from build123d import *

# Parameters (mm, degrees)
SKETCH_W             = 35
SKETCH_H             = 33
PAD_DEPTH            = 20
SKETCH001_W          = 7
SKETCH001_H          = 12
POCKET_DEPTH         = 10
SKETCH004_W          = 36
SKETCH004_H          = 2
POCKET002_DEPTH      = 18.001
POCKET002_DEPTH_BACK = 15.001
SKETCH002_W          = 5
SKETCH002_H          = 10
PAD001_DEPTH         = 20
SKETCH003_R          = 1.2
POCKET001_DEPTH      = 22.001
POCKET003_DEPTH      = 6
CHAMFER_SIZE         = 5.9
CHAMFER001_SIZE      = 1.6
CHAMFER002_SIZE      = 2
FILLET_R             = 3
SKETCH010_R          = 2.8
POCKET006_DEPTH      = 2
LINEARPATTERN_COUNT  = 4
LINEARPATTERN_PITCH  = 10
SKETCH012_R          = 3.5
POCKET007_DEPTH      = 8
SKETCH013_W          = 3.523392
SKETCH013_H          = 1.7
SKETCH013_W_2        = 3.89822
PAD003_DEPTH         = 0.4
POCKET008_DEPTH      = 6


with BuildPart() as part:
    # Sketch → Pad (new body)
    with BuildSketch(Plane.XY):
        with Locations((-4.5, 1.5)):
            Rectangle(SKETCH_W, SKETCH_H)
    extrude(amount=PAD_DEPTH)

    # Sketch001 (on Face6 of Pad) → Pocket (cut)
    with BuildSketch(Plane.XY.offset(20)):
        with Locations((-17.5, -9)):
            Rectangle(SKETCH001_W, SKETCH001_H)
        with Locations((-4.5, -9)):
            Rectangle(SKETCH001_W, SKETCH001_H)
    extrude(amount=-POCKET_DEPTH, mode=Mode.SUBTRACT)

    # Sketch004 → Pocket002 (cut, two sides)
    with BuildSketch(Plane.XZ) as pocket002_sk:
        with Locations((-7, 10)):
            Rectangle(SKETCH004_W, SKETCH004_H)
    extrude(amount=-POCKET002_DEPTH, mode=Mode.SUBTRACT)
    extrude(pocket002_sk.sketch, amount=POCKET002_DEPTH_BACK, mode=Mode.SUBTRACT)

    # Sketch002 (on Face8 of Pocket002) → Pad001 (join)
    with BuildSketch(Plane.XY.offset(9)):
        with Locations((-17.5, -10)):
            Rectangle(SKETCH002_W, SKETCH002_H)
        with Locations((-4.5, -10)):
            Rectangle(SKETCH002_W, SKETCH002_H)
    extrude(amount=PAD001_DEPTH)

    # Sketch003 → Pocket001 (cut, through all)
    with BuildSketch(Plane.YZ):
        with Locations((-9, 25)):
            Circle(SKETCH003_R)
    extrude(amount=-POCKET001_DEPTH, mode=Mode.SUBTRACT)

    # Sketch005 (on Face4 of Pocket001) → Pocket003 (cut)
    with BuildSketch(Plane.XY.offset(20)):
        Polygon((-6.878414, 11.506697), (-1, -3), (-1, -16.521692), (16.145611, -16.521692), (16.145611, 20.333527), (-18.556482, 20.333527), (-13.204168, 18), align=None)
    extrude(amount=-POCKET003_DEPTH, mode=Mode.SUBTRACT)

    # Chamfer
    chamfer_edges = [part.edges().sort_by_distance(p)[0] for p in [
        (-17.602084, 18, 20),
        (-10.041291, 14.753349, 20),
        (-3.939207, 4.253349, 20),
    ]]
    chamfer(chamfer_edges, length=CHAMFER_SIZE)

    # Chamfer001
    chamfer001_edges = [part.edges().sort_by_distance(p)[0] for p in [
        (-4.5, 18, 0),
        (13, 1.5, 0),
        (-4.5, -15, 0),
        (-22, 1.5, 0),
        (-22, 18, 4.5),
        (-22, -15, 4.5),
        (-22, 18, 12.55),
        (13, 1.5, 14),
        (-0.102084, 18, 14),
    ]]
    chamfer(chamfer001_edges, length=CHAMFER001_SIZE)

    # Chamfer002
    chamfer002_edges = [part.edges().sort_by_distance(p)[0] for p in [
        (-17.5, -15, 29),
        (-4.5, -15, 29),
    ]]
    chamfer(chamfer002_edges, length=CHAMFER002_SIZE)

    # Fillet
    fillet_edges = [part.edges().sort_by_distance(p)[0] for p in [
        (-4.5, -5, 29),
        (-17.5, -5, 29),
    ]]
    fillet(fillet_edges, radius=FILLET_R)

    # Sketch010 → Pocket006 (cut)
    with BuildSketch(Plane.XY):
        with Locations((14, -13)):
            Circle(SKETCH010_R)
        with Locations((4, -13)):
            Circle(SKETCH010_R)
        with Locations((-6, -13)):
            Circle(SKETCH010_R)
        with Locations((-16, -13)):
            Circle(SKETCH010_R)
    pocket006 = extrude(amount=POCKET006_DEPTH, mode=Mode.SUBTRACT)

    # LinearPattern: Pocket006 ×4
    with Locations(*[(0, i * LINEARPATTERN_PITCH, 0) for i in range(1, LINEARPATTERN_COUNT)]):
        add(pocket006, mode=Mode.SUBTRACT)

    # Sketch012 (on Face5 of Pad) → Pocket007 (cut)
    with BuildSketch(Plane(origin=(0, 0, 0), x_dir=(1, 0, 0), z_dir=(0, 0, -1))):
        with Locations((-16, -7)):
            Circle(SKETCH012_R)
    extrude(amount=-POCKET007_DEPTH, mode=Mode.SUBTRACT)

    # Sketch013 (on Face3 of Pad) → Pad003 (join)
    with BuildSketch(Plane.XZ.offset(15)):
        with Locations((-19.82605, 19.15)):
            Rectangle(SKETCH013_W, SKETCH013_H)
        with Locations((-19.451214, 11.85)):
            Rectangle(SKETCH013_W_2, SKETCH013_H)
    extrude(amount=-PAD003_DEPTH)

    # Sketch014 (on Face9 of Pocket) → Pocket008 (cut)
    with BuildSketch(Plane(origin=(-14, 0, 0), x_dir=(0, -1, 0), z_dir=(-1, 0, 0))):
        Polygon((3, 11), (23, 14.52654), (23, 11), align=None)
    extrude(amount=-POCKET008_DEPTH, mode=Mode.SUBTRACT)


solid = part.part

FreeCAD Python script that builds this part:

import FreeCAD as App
import Part
import Sketcher
Q = App.Units.Quantity


def edges_at(feature, points):
    """Names of the edges that pass closest to the given points."""
    edges = feature.Shape.Edges
    near = lambda p: min(range(len(edges)), key=lambda i: edges[i].distToShape(Part.Vertex(*p))[0])
    return sorted({f"Edge{near(p) + 1}" for p in points})


def add_polygon(sketch, points):
    """Adds a closed chain of lines whose ends are joined by coincident constraints."""
    first, n = sketch.GeometryCount, len(points)
    for a, b in zip(points, points[1:] + points[:1]):
        sketch.addGeometry(Part.LineSegment(App.Vector(*a, 0), App.Vector(*b, 0)), False)
    for i in range(n):
        sketch.addConstraint(Sketcher.Constraint("Coincident", first + i, 2, first + (i + 1) % n, 1))

doc = App.newDocument("Part")
body = doc.addObject("PartDesign::Body", "Body")

# Sketch on XY plane
sketch1 = body.newObject("Sketcher::SketchObject", "Sketch")
sketch1.AttachmentSupport = (doc.getObject("XY_Plane"), [""])
sketch1.MapMode = "FlatFace"
add_polygon(sketch1, [(-22, 18), (-22, -15), (13, -15), (13, 18)])  # lines 0-3
sketch1.addConstraint(Sketcher.Constraint("Vertical", 0))
sketch1.addConstraint(Sketcher.Constraint("Horizontal", 1))
sketch1.addConstraint(Sketcher.Constraint("Vertical", 2))
sketch1.addConstraint(Sketcher.Constraint("Horizontal", 3))
sketch1.addConstraint(Sketcher.Constraint("DistanceX", 1, 1, 1, 2, Q("35 mm")))
sketch1.addConstraint(Sketcher.Constraint("DistanceY", 0, 2, 0, 1, Q("33 mm")))
sketch1.addConstraint(Sketcher.Constraint("DistanceX", 0, 2, -1, 1, Q("22 mm")))
sketch1.addConstraint(Sketcher.Constraint("DistanceY", 0, 2, -1, 1, Q("15 mm")))
pad1 = body.newObject("PartDesign::Pad", "Pad")
pad1.Profile = sketch1
pad1.Length = 20

# Sketch on XY plane
sketch2 = body.newObject("Sketcher::SketchObject", "Sketch001")
sketch2.AttachmentSupport = (doc.getObject("XY_Plane"), [""])
sketch2.MapMode = "FlatFace"
sketch2.AttachmentOffset = App.Placement(App.Vector(0, 0, 20), App.Rotation())
add_polygon(sketch2, [(-21, -3), (-21, -15), (-14, -15), (-14, -3)])  # lines 0-3
add_polygon(sketch2, [(-8, -3), (-8, -15), (-1, -15), (-1, -3)])  # lines 4-7
sketch2.addConstraint(Sketcher.Constraint("Vertical", 0))
sketch2.addConstraint(Sketcher.Constraint("Horizontal", 1))
sketch2.addConstraint(Sketcher.Constraint("Vertical", 2))
sketch2.addConstraint(Sketcher.Constraint("Horizontal", 3))
sketch2.addConstraint(Sketcher.Constraint("Vertical", 4))
sketch2.addConstraint(Sketcher.Constraint("Horizontal", 5))
sketch2.addConstraint(Sketcher.Constraint("Vertical", 6))
sketch2.addConstraint(Sketcher.Constraint("Horizontal", 7))
sketch2.addConstraint(Sketcher.Constraint("Horizontal", 1, 2, 4, 2))
sketch2.addConstraint(Sketcher.Constraint("Horizontal", 3, 2, 6, 2))
sketch2.addConstraint(Sketcher.Constraint("Equal", 3, 5))
sketch2.addConstraint(Sketcher.Constraint("DistanceX", 1, 1, 1, 2, Q("7 mm")))
sketch2.addConstraint(Sketcher.Constraint("DistanceY", 0, 2, 0, 1, Q("12 mm")))
sketch2.addConstraint(Sketcher.Constraint("DistanceX", 0, 2, -1, 1, Q("21 mm")))
sketch2.addConstraint(Sketcher.Constraint("DistanceY", 0, 2, -1, 1, Q("15 mm")))
sketch2.addConstraint(Sketcher.Constraint("DistanceX", 4, 2, -1, 1, Q("8 mm")))
pocket1 = body.newObject("PartDesign::Pocket", "Pocket")
pocket1.Profile = sketch2
pocket1.Length = 10

# Sketch on XZ plane
sketch3 = body.newObject("Sketcher::SketchObject", "Sketch002")
sketch3.AttachmentSupport = (doc.getObject("XZ_Plane"), [""])
sketch3.MapMode = "FlatFace"
add_polygon(sketch3, [(-25, 11), (-25, 9), (11, 9), (11, 11)])  # lines 0-3
sketch3.addConstraint(Sketcher.Constraint("Vertical", 0))
sketch3.addConstraint(Sketcher.Constraint("Horizontal", 1))
sketch3.addConstraint(Sketcher.Constraint("Vertical", 2))
sketch3.addConstraint(Sketcher.Constraint("Horizontal", 3))
sketch3.addConstraint(Sketcher.Constraint("DistanceX", 1, 1, 1, 2, Q("36 mm")))
sketch3.addConstraint(Sketcher.Constraint("DistanceY", 0, 2, 0, 1, Q("2 mm")))
sketch3.addConstraint(Sketcher.Constraint("DistanceX", 0, 2, -1, 1, Q("25 mm")))
sketch3.addConstraint(Sketcher.Constraint("DistanceY", -1, 1, 0, 2, Q("9 mm")))
pocket2 = body.newObject("PartDesign::Pocket", "Pocket001")
pocket2.Profile = sketch3
pocket2.Type = "ThroughAll"
pocket2.Midplane = True

# Sketch on XY plane
sketch4 = body.newObject("Sketcher::SketchObject", "Sketch003")
sketch4.AttachmentSupport = (doc.getObject("XY_Plane"), [""])
sketch4.MapMode = "FlatFace"
sketch4.AttachmentOffset = App.Placement(App.Vector(0, 0, 9), App.Rotation())
add_polygon(sketch4, [(-20, -5), (-20, -15), (-15, -15), (-15, -5)])  # lines 0-3
add_polygon(sketch4, [(-7, -5), (-7, -15), (-2, -15), (-2, -5)])  # lines 4-7
sketch4.addConstraint(Sketcher.Constraint("Vertical", 0))
sketch4.addConstraint(Sketcher.Constraint("Horizontal", 1))
sketch4.addConstraint(Sketcher.Constraint("Vertical", 2))
sketch4.addConstraint(Sketcher.Constraint("Horizontal", 3))
sketch4.addConstraint(Sketcher.Constraint("Vertical", 4))
sketch4.addConstraint(Sketcher.Constraint("Horizontal", 5))
sketch4.addConstraint(Sketcher.Constraint("Vertical", 6))
sketch4.addConstraint(Sketcher.Constraint("Horizontal", 7))
sketch4.addConstraint(Sketcher.Constraint("Horizontal", 1, 2, 4, 2))
sketch4.addConstraint(Sketcher.Constraint("Horizontal", 3, 2, 6, 2))
sketch4.addConstraint(Sketcher.Constraint("Equal", 3, 5))
sketch4.addConstraint(Sketcher.Constraint("DistanceX", 1, 1, 1, 2, Q("5 mm")))
sketch4.addConstraint(Sketcher.Constraint("DistanceY", 0, 2, 0, 1, Q("10 mm")))
sketch4.addConstraint(Sketcher.Constraint("DistanceX", 0, 2, -1, 1, Q("20 mm")))
sketch4.addConstraint(Sketcher.Constraint("DistanceY", 0, 2, -1, 1, Q("15 mm")))
sketch4.addConstraint(Sketcher.Constraint("DistanceX", 4, 2, -1, 1, Q("7 mm")))
pad2 = body.newObject("PartDesign::Pad", "Pad001")
pad2.Profile = sketch4
pad2.Length = 20

# Sketch on YZ plane
sketch5 = body.newObject("Sketcher::SketchObject", "Sketch004")
sketch5.AttachmentSupport = (doc.getObject("YZ_Plane"), [""])
sketch5.MapMode = "FlatFace"
sketch5.addGeometry(Part.Circle(App.Vector(-9, 25, 0), App.Vector(0, 0, 1), 1.2), False)
sketch5.addConstraint(Sketcher.Constraint("Diameter", 0, Q("2.4 mm")))
sketch5.addConstraint(Sketcher.Constraint("DistanceX", 0, 3, -1, 1, Q("9 mm")))
sketch5.addConstraint(Sketcher.Constraint("DistanceY", -1, 1, 0, 3, Q("25 mm")))
pocket3 = body.newObject("PartDesign::Pocket", "Pocket002")
pocket3.Profile = sketch5
pocket3.Type = "ThroughAll"

# Sketch on XY plane
sketch6 = body.newObject("Sketcher::SketchObject", "Sketch005")
sketch6.AttachmentSupport = (doc.getObject("XY_Plane"), [""])
sketch6.MapMode = "FlatFace"
sketch6.AttachmentOffset = App.Placement(App.Vector(0, 0, 20), App.Rotation())
add_polygon(sketch6, [(-7, 12), (-1, -3), (-1, -17), (16, -17), (16, 20), (-19, 20), (-13, 18)])  # lines 0-6
sketch6.addConstraint(Sketcher.Constraint("Vertical", 1))
sketch6.addConstraint(Sketcher.Constraint("Horizontal", 2))
sketch6.addConstraint(Sketcher.Constraint("Vertical", 3))
sketch6.addConstraint(Sketcher.Constraint("Horizontal", 4))
sketch6.addConstraint(Sketcher.Constraint("DistanceX", 0, 2, -1, 1, Q("1 mm")))
sketch6.addConstraint(Sketcher.Constraint("DistanceY", 0, 2, -1, 1, Q("3 mm")))
sketch6.addConstraint(Sketcher.Constraint("DistanceY", -1, 1, 5, 2, Q("18 mm")))
sketch6.addConstraint(Sketcher.Constraint("DistanceX", 2, 1, 2, 2, Q("17.145611 mm")))
sketch6.addConstraint(Sketcher.Constraint("DistanceY", 3, 1, 3, 2, Q("36.855219 mm")))
sketch6.addConstraint(Sketcher.Constraint("Distance", 5, Q("5.838888 mm")))
sketch6.addConstraint(Sketcher.Constraint("DistanceX", 4, 2, 4, 1, Q("34.702093 mm")))
sketch6.addConstraint(Sketcher.Constraint("DistanceY", 1, 2, 1, 1, Q("13.521692 mm")))
sketch6.addConstraint(Sketcher.Constraint("DistanceY", 6, 2, 4, 2, Q("8.82683 mm")))
sketch6.addConstraint(Sketcher.Constraint("Distance", 0, Q("15.652476 mm")))
pocket4 = body.newObject("PartDesign::Pocket", "Pocket003")
pocket4.Profile = sketch6
pocket4.Length = 6
doc.recompute()

chamfer = body.newObject("PartDesign::Chamfer", "Chamfer")
chamfer.Base = (pocket4, edges_at(pocket4, [(-17.602, 18, 20), (-10.041, 14.753, 20), (-3.939, 4.253, 20)]))
chamfer.Size = 5.9
doc.recompute()

chamfer2 = body.newObject("PartDesign::Chamfer", "Chamfer001")
chamfer2.Base = (chamfer, edges_at(chamfer, [
    (-4.5, 18, 0),
    (13, 1.5, 0),
    (-4.5, -15, 0),
    (-22, 1.5, 0),
    (-22, 18, 4.5),
    (-22, -15, 4.5),
    (-22, 18, 12.55),
    (13, 1.5, 14),
    (-0.102, 18, 14),
]))
chamfer2.Size = 1.6
doc.recompute()

chamfer3 = body.newObject("PartDesign::Chamfer", "Chamfer002")
chamfer3.Base = (chamfer2, edges_at(chamfer2, [(-17.5, -15, 29), (-4.5, -15, 29)]))
chamfer3.Size = 2
doc.recompute()

fillet = body.newObject("PartDesign::Fillet", "Fillet")
fillet.Base = (chamfer3, edges_at(chamfer3, [(-4.5, -5, 29), (-17.5, -5, 29)]))
fillet.Radius = 3

# Sketch on XY plane
sketch7 = body.newObject("Sketcher::SketchObject", "Sketch006")
sketch7.AttachmentSupport = (doc.getObject("XY_Plane"), [""])
sketch7.MapMode = "FlatFace"
sketch7.addGeometry(Part.Circle(App.Vector(14, -13, 0), App.Vector(0, 0, 1), 2.8), False)
sketch7.addGeometry(Part.Circle(App.Vector(4, -13, 0), App.Vector(0, 0, 1), 2.8), False)
sketch7.addGeometry(Part.Circle(App.Vector(-6, -13, 0), App.Vector(0, 0, 1), 2.8), False)
sketch7.addGeometry(Part.Circle(App.Vector(-16, -13, 0), App.Vector(0, 0, 1), 2.8), False)
sketch7.addConstraint(Sketcher.Constraint("Equal", 0, 1))
sketch7.addConstraint(Sketcher.Constraint("Equal", 1, 2))
sketch7.addConstraint(Sketcher.Constraint("Equal", 2, 3))
sketch7.addConstraint(Sketcher.Constraint("Horizontal", 0, 3, 1, 3))
sketch7.addConstraint(Sketcher.Constraint("Horizontal", 1, 3, 2, 3))
sketch7.addConstraint(Sketcher.Constraint("Horizontal", 2, 3, 3, 3))
sketch7.addConstraint(Sketcher.Constraint("Diameter", 0, Q("5.6 mm")))
sketch7.addConstraint(Sketcher.Constraint("DistanceX", -1, 1, 0, 3, Q("14 mm")))
sketch7.addConstraint(Sketcher.Constraint("DistanceY", 0, 3, -1, 1, Q("13 mm")))
sketch7.addConstraint(Sketcher.Constraint("DistanceX", -1, 1, 1, 3, Q("4 mm")))
sketch7.addConstraint(Sketcher.Constraint("DistanceX", 2, 3, -1, 1, Q("6 mm")))
sketch7.addConstraint(Sketcher.Constraint("DistanceX", 3, 3, -1, 1, Q("16 mm")))
pocket5 = body.newObject("PartDesign::Pocket", "Pocket004")
pocket5.Profile = sketch7
pocket5.Length = 2
pocket5.Reversed = True
doc.recompute()

linearpattern = body.newObject("PartDesign::LinearPattern", "LinearPattern")
linearpattern.Originals = [pocket5]
linearpattern.Direction = (doc.getObject("Y_Axis"), [""])
linearpattern.Mode = "offset"
linearpattern.Offset = 10
linearpattern.Occurrences = 4
body.Tip = linearpattern

# Sketch on XY plane
sketch8 = body.newObject("Sketcher::SketchObject", "Sketch007")
sketch8.AttachmentSupport = (doc.getObject("XY_Plane"), [""])
sketch8.MapMode = "FlatFace"
sketch8.addGeometry(Part.Circle(App.Vector(-16, 7, 0), App.Vector(0, 0, 1), 3.5), False)
sketch8.addConstraint(Sketcher.Constraint("Diameter", 0, Q("7 mm")))
sketch8.addConstraint(Sketcher.Constraint("DistanceX", 0, 3, -1, 1, Q("16 mm")))
sketch8.addConstraint(Sketcher.Constraint("DistanceY", -1, 1, 0, 3, Q("7 mm")))
pocket6 = body.newObject("PartDesign::Pocket", "Pocket005")
pocket6.Profile = sketch8
pocket6.Length = 8
pocket6.Reversed = True

# Sketch on XZ plane
sketch9 = body.newObject("Sketcher::SketchObject", "Sketch008")
sketch9.AttachmentSupport = (doc.getObject("XZ_Plane"), [""])
sketch9.MapMode = "FlatFace"
sketch9.AttachmentOffset = App.Placement(App.Vector(0, 0, 15), App.Rotation())
add_polygon(sketch9, [(-21.6, 20), (-21.6, 18.3), (-18.1, 18.3), (-18.1, 20)])  # lines 0-3
add_polygon(sketch9, [(-21.4, 12.7), (-21.4, 11), (-17.5, 11), (-17.5, 12.7)])  # lines 4-7
sketch9.addConstraint(Sketcher.Constraint("Vertical", 0))
sketch9.addConstraint(Sketcher.Constraint("Horizontal", 1))
sketch9.addConstraint(Sketcher.Constraint("Vertical", 2))
sketch9.addConstraint(Sketcher.Constraint("Horizontal", 3))
sketch9.addConstraint(Sketcher.Constraint("Vertical", 4))
sketch9.addConstraint(Sketcher.Constraint("Horizontal", 5))
sketch9.addConstraint(Sketcher.Constraint("Vertical", 6))
sketch9.addConstraint(Sketcher.Constraint("Horizontal", 7))
sketch9.addConstraint(Sketcher.Constraint("Equal", 2, 4))
sketch9.addConstraint(Sketcher.Constraint("DistanceY", 0, 2, 0, 1, Q("1.7 mm")))
sketch9.addConstraint(Sketcher.Constraint("DistanceY", -1, 1, 2, 2, Q("20 mm")))
sketch9.addConstraint(Sketcher.Constraint("DistanceY", -1, 1, 4, 2, Q("11 mm")))
sketch9.addConstraint(Sketcher.Constraint("DistanceX", 1, 1, 1, 2, Q("3.523392 mm")))
sketch9.addConstraint(Sketcher.Constraint("DistanceX", 5, 1, 5, 2, Q("3.89822 mm")))
sketch9.addConstraint(Sketcher.Constraint("DistanceX", 0, 2, 4, 2, Q("0.187422 mm")))
sketch9.addConstraint(Sketcher.Constraint("DistanceX", 0, 2, -1, 1, Q("21.587746 mm")))
pad3 = body.newObject("PartDesign::Pad", "Pad002")
pad3.Profile = sketch9
pad3.Length = 0.4
pad3.Reversed = True

# Sketch on YZ plane
sketch10 = body.newObject("Sketcher::SketchObject", "Sketch009")
sketch10.AttachmentSupport = (doc.getObject("YZ_Plane"), [""])
sketch10.MapMode = "FlatFace"
sketch10.AttachmentOffset = App.Placement(App.Vector(0, 0, -14), App.Rotation())
add_polygon(sketch10, [(-23, 14.5), (-3, 11), (-23, 11)])  # lines 0-2
sketch10.addConstraint(Sketcher.Constraint("Horizontal", 1))
sketch10.addConstraint(Sketcher.Constraint("Vertical", 2))
sketch10.addConstraint(Sketcher.Constraint("DistanceX", 1, 2, 1, 1, Q("20 mm")))
sketch10.addConstraint(Sketcher.Constraint("Angle", 0, Q("-10.000001 deg")))
sketch10.addConstraint(Sketcher.Constraint("DistanceX", 0, 2, -1, 1, Q("3 mm")))
sketch10.addConstraint(Sketcher.Constraint("DistanceY", -1, 1, 0, 2, Q("11 mm")))
pocket7 = body.newObject("PartDesign::Pocket", "Pocket006")
pocket7.Profile = sketch10
pocket7.Length = 6
pocket7.Reversed = True

doc.recompute()
